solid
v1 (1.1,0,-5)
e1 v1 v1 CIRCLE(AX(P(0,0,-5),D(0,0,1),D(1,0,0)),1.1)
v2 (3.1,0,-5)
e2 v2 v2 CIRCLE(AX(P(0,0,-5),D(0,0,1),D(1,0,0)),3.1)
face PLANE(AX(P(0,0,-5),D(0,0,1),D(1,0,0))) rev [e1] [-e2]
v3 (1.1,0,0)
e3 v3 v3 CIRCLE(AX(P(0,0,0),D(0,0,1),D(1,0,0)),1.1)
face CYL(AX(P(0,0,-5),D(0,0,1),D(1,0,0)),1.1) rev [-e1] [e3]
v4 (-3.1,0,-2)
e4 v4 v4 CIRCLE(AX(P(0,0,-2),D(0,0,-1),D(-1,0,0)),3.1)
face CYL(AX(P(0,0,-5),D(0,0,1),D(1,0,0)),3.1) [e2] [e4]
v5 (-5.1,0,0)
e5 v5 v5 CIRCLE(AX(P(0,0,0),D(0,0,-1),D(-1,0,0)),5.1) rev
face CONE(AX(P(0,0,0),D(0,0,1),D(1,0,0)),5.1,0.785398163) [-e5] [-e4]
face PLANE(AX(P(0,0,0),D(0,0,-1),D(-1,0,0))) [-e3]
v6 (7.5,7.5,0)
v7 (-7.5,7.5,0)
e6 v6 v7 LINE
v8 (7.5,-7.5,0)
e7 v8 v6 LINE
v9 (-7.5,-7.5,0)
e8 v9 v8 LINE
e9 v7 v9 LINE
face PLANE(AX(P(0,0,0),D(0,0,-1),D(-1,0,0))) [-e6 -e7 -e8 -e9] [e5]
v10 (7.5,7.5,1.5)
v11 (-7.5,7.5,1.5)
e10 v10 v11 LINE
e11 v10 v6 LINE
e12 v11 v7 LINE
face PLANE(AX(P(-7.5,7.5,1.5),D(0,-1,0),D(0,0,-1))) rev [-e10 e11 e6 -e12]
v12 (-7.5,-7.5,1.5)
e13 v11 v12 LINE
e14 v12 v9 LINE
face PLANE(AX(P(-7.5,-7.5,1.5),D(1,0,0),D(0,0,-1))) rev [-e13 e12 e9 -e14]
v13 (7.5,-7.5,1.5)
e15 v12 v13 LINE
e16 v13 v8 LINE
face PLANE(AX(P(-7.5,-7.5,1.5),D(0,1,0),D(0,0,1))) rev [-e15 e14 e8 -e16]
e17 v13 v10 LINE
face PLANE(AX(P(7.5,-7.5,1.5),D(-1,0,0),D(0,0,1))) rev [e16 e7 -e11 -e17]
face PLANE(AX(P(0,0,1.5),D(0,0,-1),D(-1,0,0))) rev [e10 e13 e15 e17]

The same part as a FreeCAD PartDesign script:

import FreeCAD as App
import Part
import Sketcher
Q = App.Units.Quantity


def edges_at(feature, points):
    """Names of the edges that pass closest to the given points."""
    edges = feature.Shape.Edges
    near = lambda p: min(range(len(edges)), key=lambda i: edges[i].distToShape(Part.Vertex(*p))[0])
    return sorted({f"Edge{near(p) + 1}" for p in points})

doc = App.newDocument("Part")
params = doc.addObject("Spreadsheet::Sheet", "Params")
for row, (alias, value) in enumerate([
    ("sketch1_width", "15 mm"),
    ("pad1_length", "1.5 mm"),
    ("sketch2_diameter", "6.2 mm"),
    ("sketch2_diameter2", "2.2 mm"),
    ("pad2_length", "5 mm"),
    ("chamfer_size", "2 mm"),
], start=1):
    params.set(f"A{row}", alias)
    params.set(f"B{row}", "=" + value)
    params.setAlias(f"B{row}", alias)

body = doc.addObject("PartDesign::Body", "Body")

sketch1 = body.newObject("Sketcher::SketchObject", "Sketch")
sketch1.AttachmentSupport = (doc.getObject("XY_Plane"), [""])
sketch1.MapMode = "FlatFace"
sketch1.addGeometry([
    Part.LineSegment(App.Vector(-8, 8, 0), App.Vector(-8, -8, 0)),
    Part.LineSegment(App.Vector(-8, -8, 0), App.Vector(8, -8, 0)),
    Part.LineSegment(App.Vector(8, -8, 0), App.Vector(8, 8, 0)),
    Part.LineSegment(App.Vector(8, 8, 0), App.Vector(-8, 8, 0)),
], False)
sketch1.addConstraint([
    Sketcher.Constraint("Coincident", 0, 2, 1, 1),
    Sketcher.Constraint("Coincident", 1, 2, 2, 1),
    Sketcher.Constraint("Coincident", 2, 2, 3, 1),
    Sketcher.Constraint("Coincident", 3, 2, 0, 1),
    Sketcher.Constraint("Vertical", 0),
    Sketcher.Constraint("Horizontal", 1),
    Sketcher.Constraint("Vertical", 2),
    Sketcher.Constraint("Horizontal", 3),
    Sketcher.Constraint("Symmetric", 0, 2, 2, 2, -1, 1),
    Sketcher.Constraint("Equal", 3, 0),
    Sketcher.Constraint("DistanceX", 1, 1, 1, 2, Q("15 mm")),
])
sketch1.setExpression("Constraints[10]", "Params.sketch1_width")
pad1 = body.newObject("PartDesign::Pad", "Pad")
pad1.Profile = sketch1
pad1.setExpression("Length", "Params.pad1_length")

sketch2 = body.newObject("Sketcher::SketchObject", "Sketch001")
sketch2.AttachmentSupport = (doc.getObject("XY_Plane"), [""])
sketch2.MapMode = "FlatFace"
sketch2.addGeometry([
    Part.Circle(App.Vector(0, 0, 0), App.Vector(0, 0, 1), 3.1),
    Part.Circle(App.Vector(0, 0, 0), App.Vector(0, 0, 1), 1.1),
], False)
sketch2.addConstraint([
    Sketcher.Constraint("Coincident", 0, 3, -1, 1),
    Sketcher.Constraint("Coincident", 1, 3, -1, 1),
    Sketcher.Constraint("Diameter", 0, Q("6.2 mm")),
    Sketcher.Constraint("Diameter", 1, Q("2.2 mm")),
])
sketch2.setExpression("Constraints[2]", "Params.sketch2_diameter")
sketch2.setExpression("Constraints[3]", "Params.sketch2_diameter2")
pad2 = body.newObject("PartDesign::Pad", "Pad001")
pad2.Profile = sketch2
pad2.setExpression("Length", "Params.pad2_length")
pad2.Reversed = True
doc.recompute()

chamfer = body.newObject("PartDesign::Chamfer", "Chamfer")
chamfer.Base = (pad2, edges_at(pad2, [(-3.1, 0, 0)]))
chamfer.setExpression("Size", "Params.chamfer_size")

doc.recompute()
